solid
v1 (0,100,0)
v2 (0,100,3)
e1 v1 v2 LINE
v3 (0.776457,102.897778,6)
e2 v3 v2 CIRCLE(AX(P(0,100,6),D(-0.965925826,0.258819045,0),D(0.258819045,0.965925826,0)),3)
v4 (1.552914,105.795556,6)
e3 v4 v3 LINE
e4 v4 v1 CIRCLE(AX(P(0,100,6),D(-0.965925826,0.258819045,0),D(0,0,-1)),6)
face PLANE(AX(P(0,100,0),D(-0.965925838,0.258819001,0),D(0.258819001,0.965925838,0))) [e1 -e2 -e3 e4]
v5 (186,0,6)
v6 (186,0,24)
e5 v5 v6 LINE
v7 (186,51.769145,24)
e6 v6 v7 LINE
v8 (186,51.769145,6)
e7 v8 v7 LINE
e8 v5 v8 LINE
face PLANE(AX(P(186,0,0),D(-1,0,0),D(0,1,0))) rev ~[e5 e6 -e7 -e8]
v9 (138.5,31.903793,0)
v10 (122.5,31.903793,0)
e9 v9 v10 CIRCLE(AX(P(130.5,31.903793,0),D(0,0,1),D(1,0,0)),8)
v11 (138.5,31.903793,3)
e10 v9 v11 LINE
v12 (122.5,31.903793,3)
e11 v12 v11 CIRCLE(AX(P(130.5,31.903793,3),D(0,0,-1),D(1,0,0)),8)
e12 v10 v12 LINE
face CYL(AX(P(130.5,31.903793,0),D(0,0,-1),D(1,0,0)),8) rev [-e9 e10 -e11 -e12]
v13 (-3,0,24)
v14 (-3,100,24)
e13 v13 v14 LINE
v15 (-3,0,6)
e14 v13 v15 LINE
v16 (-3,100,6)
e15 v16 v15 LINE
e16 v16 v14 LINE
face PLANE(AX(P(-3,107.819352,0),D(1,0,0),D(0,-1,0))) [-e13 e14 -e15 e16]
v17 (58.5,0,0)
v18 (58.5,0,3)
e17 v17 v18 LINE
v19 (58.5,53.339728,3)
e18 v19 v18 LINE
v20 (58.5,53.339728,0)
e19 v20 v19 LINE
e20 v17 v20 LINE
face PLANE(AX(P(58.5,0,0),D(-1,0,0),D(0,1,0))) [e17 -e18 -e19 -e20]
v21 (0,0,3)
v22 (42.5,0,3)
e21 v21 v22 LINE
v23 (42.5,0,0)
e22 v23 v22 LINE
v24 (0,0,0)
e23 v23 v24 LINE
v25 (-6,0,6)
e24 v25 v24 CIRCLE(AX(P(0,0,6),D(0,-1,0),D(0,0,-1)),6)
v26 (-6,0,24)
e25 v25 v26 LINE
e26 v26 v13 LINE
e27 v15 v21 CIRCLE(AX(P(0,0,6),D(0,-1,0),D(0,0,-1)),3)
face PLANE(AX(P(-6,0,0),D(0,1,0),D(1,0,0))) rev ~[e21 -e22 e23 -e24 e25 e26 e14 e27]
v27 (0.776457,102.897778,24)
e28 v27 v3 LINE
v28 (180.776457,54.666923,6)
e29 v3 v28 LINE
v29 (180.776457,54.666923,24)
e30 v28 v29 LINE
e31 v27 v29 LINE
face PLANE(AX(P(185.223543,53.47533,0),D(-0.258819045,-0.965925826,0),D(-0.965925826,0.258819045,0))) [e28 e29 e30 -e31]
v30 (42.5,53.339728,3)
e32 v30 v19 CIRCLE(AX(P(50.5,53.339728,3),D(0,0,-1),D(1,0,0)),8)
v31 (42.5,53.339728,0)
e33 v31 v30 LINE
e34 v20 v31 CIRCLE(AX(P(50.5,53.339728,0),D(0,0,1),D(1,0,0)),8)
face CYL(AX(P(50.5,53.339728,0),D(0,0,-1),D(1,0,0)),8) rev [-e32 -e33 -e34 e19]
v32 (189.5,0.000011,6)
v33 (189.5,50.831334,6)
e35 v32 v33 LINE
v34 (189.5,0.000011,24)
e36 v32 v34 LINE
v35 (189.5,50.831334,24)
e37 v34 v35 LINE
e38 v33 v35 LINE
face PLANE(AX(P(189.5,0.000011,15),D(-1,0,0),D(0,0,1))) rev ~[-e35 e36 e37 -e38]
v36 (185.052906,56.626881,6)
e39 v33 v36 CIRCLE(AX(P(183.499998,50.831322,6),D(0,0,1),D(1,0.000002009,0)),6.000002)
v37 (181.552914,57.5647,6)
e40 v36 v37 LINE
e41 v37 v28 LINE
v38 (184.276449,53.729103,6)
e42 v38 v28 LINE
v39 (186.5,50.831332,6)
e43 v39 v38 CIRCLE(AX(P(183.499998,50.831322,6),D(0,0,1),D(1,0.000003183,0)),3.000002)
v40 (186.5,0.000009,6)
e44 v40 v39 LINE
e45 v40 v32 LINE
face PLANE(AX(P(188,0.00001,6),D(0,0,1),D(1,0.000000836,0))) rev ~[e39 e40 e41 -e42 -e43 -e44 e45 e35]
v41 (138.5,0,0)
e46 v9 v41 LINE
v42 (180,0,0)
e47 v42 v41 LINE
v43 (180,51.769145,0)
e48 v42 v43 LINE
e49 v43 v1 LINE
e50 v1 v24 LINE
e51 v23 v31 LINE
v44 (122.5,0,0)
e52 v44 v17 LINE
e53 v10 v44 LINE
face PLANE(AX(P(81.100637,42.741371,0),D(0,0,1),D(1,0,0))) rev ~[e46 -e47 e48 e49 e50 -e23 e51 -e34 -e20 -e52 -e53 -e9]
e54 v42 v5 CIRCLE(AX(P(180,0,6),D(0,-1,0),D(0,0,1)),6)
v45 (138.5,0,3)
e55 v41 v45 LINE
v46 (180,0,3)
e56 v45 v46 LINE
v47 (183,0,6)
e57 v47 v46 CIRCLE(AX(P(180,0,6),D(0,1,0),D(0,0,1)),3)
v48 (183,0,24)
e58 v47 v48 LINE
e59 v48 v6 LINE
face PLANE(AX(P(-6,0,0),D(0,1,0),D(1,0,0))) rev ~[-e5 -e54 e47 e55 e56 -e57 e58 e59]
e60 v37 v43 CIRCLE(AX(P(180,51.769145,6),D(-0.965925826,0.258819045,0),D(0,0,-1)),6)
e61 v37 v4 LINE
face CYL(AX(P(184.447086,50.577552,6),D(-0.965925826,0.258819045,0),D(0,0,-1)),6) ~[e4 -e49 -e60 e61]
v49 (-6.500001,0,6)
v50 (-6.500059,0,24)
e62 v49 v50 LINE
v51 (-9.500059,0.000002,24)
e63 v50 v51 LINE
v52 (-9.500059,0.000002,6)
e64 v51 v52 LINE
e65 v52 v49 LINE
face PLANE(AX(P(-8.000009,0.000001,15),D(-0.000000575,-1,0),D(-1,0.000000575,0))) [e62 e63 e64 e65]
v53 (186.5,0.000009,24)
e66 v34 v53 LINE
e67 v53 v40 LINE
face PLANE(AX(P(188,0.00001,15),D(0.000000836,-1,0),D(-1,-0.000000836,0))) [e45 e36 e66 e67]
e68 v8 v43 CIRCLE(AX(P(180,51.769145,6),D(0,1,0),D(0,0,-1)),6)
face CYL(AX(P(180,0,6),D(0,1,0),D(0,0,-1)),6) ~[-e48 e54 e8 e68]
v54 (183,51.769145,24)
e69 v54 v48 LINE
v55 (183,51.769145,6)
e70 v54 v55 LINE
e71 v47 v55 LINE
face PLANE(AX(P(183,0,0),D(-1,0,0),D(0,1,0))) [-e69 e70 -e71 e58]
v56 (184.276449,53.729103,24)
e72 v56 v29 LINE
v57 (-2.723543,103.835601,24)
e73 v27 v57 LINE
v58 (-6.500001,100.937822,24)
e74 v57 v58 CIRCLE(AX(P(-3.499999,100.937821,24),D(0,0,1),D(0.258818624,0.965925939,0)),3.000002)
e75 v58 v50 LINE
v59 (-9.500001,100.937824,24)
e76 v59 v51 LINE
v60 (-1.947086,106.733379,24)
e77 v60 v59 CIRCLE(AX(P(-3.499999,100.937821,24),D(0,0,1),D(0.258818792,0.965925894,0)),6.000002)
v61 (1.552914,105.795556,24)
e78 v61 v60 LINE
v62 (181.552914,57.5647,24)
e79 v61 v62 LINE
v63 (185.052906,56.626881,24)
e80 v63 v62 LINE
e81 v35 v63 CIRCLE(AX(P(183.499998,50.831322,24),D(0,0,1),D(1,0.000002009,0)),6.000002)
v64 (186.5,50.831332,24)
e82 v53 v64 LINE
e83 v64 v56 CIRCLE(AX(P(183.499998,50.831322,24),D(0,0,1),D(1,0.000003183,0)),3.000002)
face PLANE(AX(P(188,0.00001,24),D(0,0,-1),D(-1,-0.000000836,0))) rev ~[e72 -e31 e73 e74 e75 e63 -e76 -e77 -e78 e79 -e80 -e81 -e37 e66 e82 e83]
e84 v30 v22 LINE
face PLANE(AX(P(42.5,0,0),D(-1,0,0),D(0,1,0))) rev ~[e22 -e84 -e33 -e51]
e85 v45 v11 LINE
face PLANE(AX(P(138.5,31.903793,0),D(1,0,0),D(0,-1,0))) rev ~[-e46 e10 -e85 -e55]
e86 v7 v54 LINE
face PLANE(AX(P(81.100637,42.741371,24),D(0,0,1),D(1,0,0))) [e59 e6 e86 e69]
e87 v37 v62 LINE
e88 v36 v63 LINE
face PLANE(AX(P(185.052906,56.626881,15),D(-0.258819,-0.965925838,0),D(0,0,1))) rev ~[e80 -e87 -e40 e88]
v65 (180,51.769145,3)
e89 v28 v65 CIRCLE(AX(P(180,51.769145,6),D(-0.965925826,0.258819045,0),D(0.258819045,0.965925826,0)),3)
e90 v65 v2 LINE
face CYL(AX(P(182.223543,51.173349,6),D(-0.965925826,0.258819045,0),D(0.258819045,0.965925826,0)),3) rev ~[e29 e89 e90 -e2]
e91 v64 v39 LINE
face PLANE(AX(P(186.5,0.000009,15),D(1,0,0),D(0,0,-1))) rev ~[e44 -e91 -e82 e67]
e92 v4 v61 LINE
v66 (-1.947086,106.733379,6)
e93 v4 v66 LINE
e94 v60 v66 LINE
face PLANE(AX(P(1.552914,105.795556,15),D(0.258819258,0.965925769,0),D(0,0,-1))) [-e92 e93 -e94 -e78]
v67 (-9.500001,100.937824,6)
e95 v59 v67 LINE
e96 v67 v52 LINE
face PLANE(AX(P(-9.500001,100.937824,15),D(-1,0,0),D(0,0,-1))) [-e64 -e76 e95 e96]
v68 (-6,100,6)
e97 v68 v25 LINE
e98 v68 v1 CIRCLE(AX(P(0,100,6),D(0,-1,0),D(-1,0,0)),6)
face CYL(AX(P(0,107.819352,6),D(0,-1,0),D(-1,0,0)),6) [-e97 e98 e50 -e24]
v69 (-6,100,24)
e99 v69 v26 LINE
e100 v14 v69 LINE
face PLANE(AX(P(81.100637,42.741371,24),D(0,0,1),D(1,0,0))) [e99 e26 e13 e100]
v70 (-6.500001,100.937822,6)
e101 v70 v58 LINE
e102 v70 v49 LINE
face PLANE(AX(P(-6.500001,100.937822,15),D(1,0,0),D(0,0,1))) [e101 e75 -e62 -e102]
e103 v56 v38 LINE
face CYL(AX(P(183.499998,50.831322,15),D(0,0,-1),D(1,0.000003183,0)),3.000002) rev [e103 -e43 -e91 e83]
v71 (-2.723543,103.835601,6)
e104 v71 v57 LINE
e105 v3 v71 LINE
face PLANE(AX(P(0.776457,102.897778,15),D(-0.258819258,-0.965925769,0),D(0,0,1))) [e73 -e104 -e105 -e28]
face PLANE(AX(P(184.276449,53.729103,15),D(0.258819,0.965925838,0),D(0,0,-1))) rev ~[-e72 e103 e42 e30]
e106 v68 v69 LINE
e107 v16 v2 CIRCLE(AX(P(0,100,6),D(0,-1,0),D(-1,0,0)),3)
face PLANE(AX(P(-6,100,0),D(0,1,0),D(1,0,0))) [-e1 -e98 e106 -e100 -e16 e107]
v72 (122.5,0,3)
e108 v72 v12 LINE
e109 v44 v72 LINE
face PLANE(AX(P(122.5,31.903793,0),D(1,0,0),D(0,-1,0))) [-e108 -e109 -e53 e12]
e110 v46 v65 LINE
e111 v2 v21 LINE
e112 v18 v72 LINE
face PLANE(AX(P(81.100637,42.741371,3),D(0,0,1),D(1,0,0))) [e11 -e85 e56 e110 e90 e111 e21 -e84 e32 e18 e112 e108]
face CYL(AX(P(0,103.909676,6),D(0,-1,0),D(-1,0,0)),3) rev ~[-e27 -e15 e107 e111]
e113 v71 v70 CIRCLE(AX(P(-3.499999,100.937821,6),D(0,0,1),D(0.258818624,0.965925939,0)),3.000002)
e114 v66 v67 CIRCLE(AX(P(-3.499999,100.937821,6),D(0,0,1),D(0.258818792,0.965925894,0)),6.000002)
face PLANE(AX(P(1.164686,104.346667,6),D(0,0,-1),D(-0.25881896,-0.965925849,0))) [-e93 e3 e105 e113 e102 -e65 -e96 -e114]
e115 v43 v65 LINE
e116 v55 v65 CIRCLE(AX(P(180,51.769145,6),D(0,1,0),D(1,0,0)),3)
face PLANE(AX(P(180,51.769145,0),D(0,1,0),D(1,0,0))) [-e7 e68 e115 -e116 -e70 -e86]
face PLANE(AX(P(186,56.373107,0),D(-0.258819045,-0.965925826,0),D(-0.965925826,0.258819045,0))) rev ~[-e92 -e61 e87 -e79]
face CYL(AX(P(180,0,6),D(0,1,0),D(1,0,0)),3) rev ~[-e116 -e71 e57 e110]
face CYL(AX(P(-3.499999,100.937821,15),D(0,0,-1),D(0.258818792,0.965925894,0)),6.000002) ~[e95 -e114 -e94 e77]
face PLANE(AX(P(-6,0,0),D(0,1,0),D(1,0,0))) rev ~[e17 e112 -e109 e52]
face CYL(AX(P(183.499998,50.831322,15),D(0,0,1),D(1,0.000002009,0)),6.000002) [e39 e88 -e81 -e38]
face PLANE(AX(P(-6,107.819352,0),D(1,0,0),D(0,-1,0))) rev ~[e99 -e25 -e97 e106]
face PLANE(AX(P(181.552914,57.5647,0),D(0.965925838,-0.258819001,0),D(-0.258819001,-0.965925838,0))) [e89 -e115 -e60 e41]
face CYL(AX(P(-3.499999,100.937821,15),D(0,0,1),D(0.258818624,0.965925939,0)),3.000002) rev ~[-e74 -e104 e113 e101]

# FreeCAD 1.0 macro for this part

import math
import FreeCAD as App
import Part
import Sketcher
Q = App.Units.Quantity


def edges_at(feature, points):
    """Names of the edges that pass closest to the given points."""
    edges = feature.Shape.Edges
    near = lambda p: min(range(len(edges)), key=lambda i: edges[i].distToShape(Part.Vertex(*p))[0])
    return sorted({f"Edge{near(p) + 1}" for p in points})


def faces_at(feature, points):
    """Names of the faces that lie closest to the given points."""
    faces = feature.Shape.Faces
    near = lambda p: min(range(len(faces)), key=lambda i: faces[i].distToShape(Part.Vertex(*p))[0])
    return sorted({f"Face{near(p) + 1}" for p in points})


def add_polygon(sketch, points):
    """Adds a closed chain of lines whose ends are joined by coincident constraints."""
    first, n = sketch.GeometryCount, len(points)
    for a, b in zip(points, points[1:] + points[:1]):
        sketch.addGeometry(Part.LineSegment(App.Vector(*a, 0), App.Vector(*b, 0)), False)
    for i in range(n):
        sketch.addConstraint(Sketcher.Constraint("Coincident", first + i, 2, first + (i + 1) % n, 1))

doc = App.newDocument("Part")
body = doc.addObject("PartDesign::Body", "Body")

# Sketch on XY plane
sketch1 = doc.addObject("Sketcher::SketchObject", "Sketch")
body.addObject(sketch1)
sketch1.AttachmentSupport = (doc.XY_Plane, [""])
sketch1.MapMode = "FlatFace"
add_polygon(sketch1, [(-6, 0), (186, 0), (186, 56), (-6, 108)])  # lines 0-3
sketch1.addConstraint([
    Sketcher.Constraint("Horizontal", 0),
    Sketcher.Constraint("Vertical", 1),
    Sketcher.Constraint("Vertical", 3),
    Sketcher.Constraint("PointOnObject", 0, 2, -1),
    Sketcher.Constraint("DistanceX", 0, 1, 0, 2, 192.0),
    Sketcher.Constraint("Angle", 2, Q("165 deg")),
    Sketcher.Constraint("DistanceX", -1, 1, 0, 2, 186.0),
    Sketcher.Constraint("DistanceY", 3, 2, 3, 1, 107.819352),
])
pad1 = doc.addObject("PartDesign::Pad", "Pad")
body.addObject(pad1)
pad1.Profile = sketch1
pad1.Length = 24
doc.recompute()

thickness = doc.addObject("PartDesign::Thickness", "Thickness")
body.addObject(thickness)
thickness.Base = (pad1, faces_at(pad1, [(90, 53.91, 24), (90, 0, 12)]))
thickness.Value = 3
thickness.Reversed = True
thickness.Join = "Intersection"
doc.recompute()

fillet = doc.addObject("PartDesign::Fillet", "Fillet")
body.addObject(fillet)
fillet.Base = (thickness, edges_at(thickness, [(-3, 51.955, 3), (183, 27.036, 3), (90, 78.99, 3)]))
fillet.Radius = 3
doc.recompute()

fillet2 = doc.addObject("PartDesign::Fillet", "Fillet001")
body.addObject(fillet2)
fillet2.Base = (fillet, edges_at(fillet, [(90, 82.096, 0), (-6, 53.91, 0), (186, 28.187, 0)]))
fillet2.Radius = 6

# Sketch on XY plane
sketch2 = doc.addObject("Sketcher::SketchObject", "Sketch001")
body.addObject(sketch2)
sketch2.AttachmentSupport = (doc.XY_Plane, [""])
sketch2.MapMode = "FlatFace"
add_polygon(sketch2, [(186, 56.4), (186, 51.8), (180, 51.8), (181.6, 57.6)])  # lines 0-3
add_polygon(sketch2, [(1.6, 105.8), (0, 100), (-6, 100), (-6, 107.8)])  # lines 4-7
sketch2.addConstraint([
    Sketcher.Constraint("Vertical", 0),
    Sketcher.Constraint("Horizontal", 1),
    Sketcher.Constraint("Horizontal", 5),
    Sketcher.Constraint("Vertical", 6),
    Sketcher.Constraint("PointOnObject", 4, 2, -2),
    Sketcher.Constraint("Perpendicular", 2, 3),
    Sketcher.Constraint("Perpendicular", 3, 4),
    Sketcher.Constraint("Perpendicular", 4, 7),
    Sketcher.Constraint("Equal", 1, 5),
    Sketcher.Constraint("Equal", 2, 4),
    Sketcher.Constraint("DistanceX", 1, 2, 1, 1, 6.0),
    Sketcher.Constraint("Angle", 2, Q("75.000003 deg")),
    Sketcher.Constraint("Distance", 2, 6.0),
    Sketcher.Constraint("DistanceX", -1, 1, 0, 2, 186.0),
    Sketcher.Constraint("DistanceY", -1, 1, 4, 2, 100.0),
    Sketcher.Constraint("DistanceY", -1, 1, 2, 2, 57.5647),
])
pocket1 = doc.addObject("PartDesign::Pocket", "Pocket")
body.addObject(pocket1)
pocket1.Profile = sketch2
pocket1.Type = "ThroughAll"
pocket1.Reversed = True

# Sketch on an angled plane
sketch3 = doc.addObject("Sketcher::SketchObject", "Sketch002")
body.addObject(sketch3)
sketch3.Placement = App.Placement(App.Vector(-25, 6.69873, 0), App.Rotation(App.Vector(-0.25881896, -0.965925849, 0), App.Vector(0, 0, 1), App.Vector(-0.965925849, 0.25881896, 0), "ZXY"))
add_polygon(sketch3, [(-102.6, 24), (-102.6, 6), (-99.6, 6), (-99.6, 24)])  # lines 0-3
sketch3.addConstraint([
    Sketcher.Constraint("Vertical", 0),
    Sketcher.Constraint("Horizontal", 1),
    Sketcher.Constraint("Vertical", 2),
    Sketcher.Constraint("Horizontal", 3),
    Sketcher.Constraint("DistanceX", 1, 1, 1, 2, 3.0),
    Sketcher.Constraint("DistanceY", 0, 2, 0, 1, 18.0),
    Sketcher.Constraint("DistanceY", -1, 1, 0, 2, 6.0),
    Sketcher.Constraint("DistanceX", 0, 2, -1, 1, 102.592583),
])

# Sketch on XY plane
sketch4 = doc.addObject("Sketcher::SketchObject", "Sketch003")
body.addObject(sketch4)
sketch4.AttachmentSupport = (doc.XY_Plane, [""])
sketch4.MapMode = "FlatFace"
sketch4.AttachmentOffset = App.Placement(App.Vector(0, 0, 24), App.Rotation())
sketch4.addGeometry([
    Part.LineSegment(App.Vector(0.8, 102.9, 0), App.Vector(-2.7, 103.8, 0)),
    Part.ArcOfCircle(Part.Circle(App.Vector(-3.5, 100.9, 0), App.Vector(0, 0, 1), 3), math.radians(75), math.radians(180)),
    Part.LineSegment(App.Vector(-6.5, 100.9, 0), App.Vector(-6.5, 0, 0)),
], False)
sketch4.addConstraint([
    Sketcher.Constraint("Tangent", 0, 2, 1, 1),
    Sketcher.Constraint("Tangent", 1, 2, 2, 1),
    Sketcher.Constraint("Vertical", 2),
    Sketcher.Constraint("PointOnObject", 2, 2, -1),
    Sketcher.Constraint("Radius", 1, 3.000001),
    Sketcher.Constraint("Angle", 0, Q("164.999987 deg")),
    Sketcher.Constraint("DistanceX", 1, 3, -1, 1, 3.499999),
    Sketcher.Constraint("DistanceX", 0, 2, 0, 1, 3.5),
    Sketcher.Constraint("DistanceY", 2, 2, 2, 1, 100.937822),
])
doc.recompute()

additivepipe = doc.addObject("PartDesign::AdditivePipe", "AdditivePipe")
body.addObject(additivepipe)
additivepipe.Profile = sketch3
additivepipe.Spine = (sketch4, ["Edge1", "Edge2", "Edge3"])

# Sketch on an angled plane
sketch5 = doc.addObject("Sketcher::SketchObject", "Sketch004")
body.addObject(sketch5)
sketch5.Placement = App.Placement(App.Vector(155, -41.532125, 0), App.Rotation(App.Vector(0.25881896, 0.965925849, 0), App.Vector(0, 0, 1), App.Vector(0.965925849, -0.25881896, 0), "ZXY"))
add_polygon(sketch5, [(99.6, 24), (99.6, 6), (102.6, 6), (102.6, 24)])  # lines 0-3
sketch5.addConstraint([
    Sketcher.Constraint("Vertical", 0),
    Sketcher.Constraint("Horizontal", 1),
    Sketcher.Constraint("Vertical", 2),
    Sketcher.Constraint("Horizontal", 3),
    Sketcher.Constraint("DistanceX", 1, 1, 1, 2, 3.0),
    Sketcher.Constraint("DistanceY", 0, 2, 0, 1, 18.0),
    Sketcher.Constraint("DistanceY", -1, 1, 0, 2, 6.0),
    Sketcher.Constraint("DistanceX", -1, 1, 0, 2, 99.592583),
])

# Sketch on XY plane
sketch6 = doc.addObject("Sketcher::SketchObject", "Sketch005")
body.addObject(sketch6)
sketch6.AttachmentSupport = (doc.XY_Plane, [""])
sketch6.MapMode = "FlatFace"
sketch6.AttachmentOffset = App.Placement(App.Vector(0, 0, 24), App.Rotation())
sketch6.addGeometry([
    Part.LineSegment(App.Vector(186.5, 0, 0), App.Vector(186.5, 50.8, 0)),
    Part.ArcOfCircle(Part.Circle(App.Vector(183.5, 50.8, 0), App.Vector(0, 0, 1), 3), math.radians(0), math.radians(75)),
    Part.LineSegment(App.Vector(184.3, 53.7, 0), App.Vector(180.8, 54.7, 0)),
], False)
sketch6.addConstraint([
    Sketcher.Constraint("Tangent", 0, 2, 1, 1),
    Sketcher.Constraint("Tangent", 1, 2, 2, 1),
    Sketcher.Constraint("Vertical", 0),
    Sketcher.Constraint("PointOnObject", 0, 1, -1),
    Sketcher.Constraint("Radius", 1, 3.000002),
    Sketcher.Constraint("Angle", 2, Q("165.000003 deg")),
    Sketcher.Constraint("DistanceX", -1, 1, 1, 3, 183.499998),
    Sketcher.Constraint("DistanceX", 2, 2, 1, 2, 3.5),
    Sketcher.Constraint("DistanceY", -1, 1, 1, 2, 53.729101),
])
doc.recompute()

additivepipe2 = doc.addObject("PartDesign::AdditivePipe", "AdditivePipe001")
body.addObject(additivepipe2)
additivepipe2.Profile = sketch5
additivepipe2.Spine = (sketch6, ["Edge1", "Edge2", "Edge3"])

# Sketch on XY plane
sketch7 = doc.addObject("Sketcher::SketchObject", "Sketch006")
body.addObject(sketch7)
sketch7.AttachmentSupport = (doc.XY_Plane, [""])
sketch7.MapMode = "FlatFace"
sketch7.addGeometry([
    Part.ArcOfCircle(Part.Circle(App.Vector(50, 0, 0), App.Vector(0, 0, 1), 8), math.radians(180), math.radians(360)),  # 0
    Part.LineSegment(App.Vector(58, 0, 0), App.Vector(58, 53, 0)),  # 1
    Part.ArcOfCircle(Part.Circle(App.Vector(50, 53, 0), App.Vector(0, 0, 1), 8), math.radians(0), math.radians(180)),  # 2
    Part.LineSegment(App.Vector(42, 53, 0), App.Vector(42, 0, 0)),  # 3
    Part.ArcOfCircle(Part.Circle(App.Vector(130, 32, 0), App.Vector(0, 0, 1), 8), math.radians(0), math.radians(180)),  # 4
    Part.LineSegment(App.Vector(122, 32, 0), App.Vector(122, 0, 0)),  # 5
    Part.ArcOfCircle(Part.Circle(App.Vector(130, 0, 0), App.Vector(0, 0, 1), 8), math.radians(180), math.radians(360)),  # 6
    Part.LineSegment(App.Vector(138, 0, 0), App.Vector(138, 32, 0)),  # 7
], False)
sketch7.addConstraint([
    Sketcher.Constraint("Tangent", 0, 2, 1, 1),
    Sketcher.Constraint("Tangent", 1, 2, 2, 1),
    Sketcher.Constraint("Tangent", 2, 2, 3, 1),
    Sketcher.Constraint("Tangent", 3, 2, 0, 1),
    Sketcher.Constraint("Tangent", 4, 2, 5, 1),
    Sketcher.Constraint("Tangent", 5, 2, 6, 1),
    Sketcher.Constraint("Tangent", 6, 2, 7, 1),
    Sketcher.Constraint("Tangent", 7, 2, 4, 1),
    Sketcher.Constraint("Vertical", 1),
    Sketcher.Constraint("Vertical", 3),
    Sketcher.Constraint("Vertical", 5),
    Sketcher.Constraint("Vertical", 7),
    Sketcher.Constraint("Equal", 2, 4),
    Sketcher.Constraint("PointOnObject", 0, 3, -1),
    Sketcher.Constraint("PointOnObject", 6, 3, -1),
    Sketcher.Constraint("Radius", 0, 8.0),
    Sketcher.Constraint("DistanceX", 2, 3, 4, 3, 80.0),
    Sketcher.Constraint("DistanceX", -1, 1, 0, 3, 50.5),
    Sketcher.Constraint("DistanceY", 1, 1, 1, 2, 53.339728),
    Sketcher.Constraint("DistanceY", 5, 2, 5, 1, 31.903793),
])
pocket2 = doc.addObject("PartDesign::Pocket", "Pocket001")
body.addObject(pocket2)
pocket2.Profile = sketch7
pocket2.Type = "ThroughAll"
pocket2.Midplane = True

doc.recompute()
